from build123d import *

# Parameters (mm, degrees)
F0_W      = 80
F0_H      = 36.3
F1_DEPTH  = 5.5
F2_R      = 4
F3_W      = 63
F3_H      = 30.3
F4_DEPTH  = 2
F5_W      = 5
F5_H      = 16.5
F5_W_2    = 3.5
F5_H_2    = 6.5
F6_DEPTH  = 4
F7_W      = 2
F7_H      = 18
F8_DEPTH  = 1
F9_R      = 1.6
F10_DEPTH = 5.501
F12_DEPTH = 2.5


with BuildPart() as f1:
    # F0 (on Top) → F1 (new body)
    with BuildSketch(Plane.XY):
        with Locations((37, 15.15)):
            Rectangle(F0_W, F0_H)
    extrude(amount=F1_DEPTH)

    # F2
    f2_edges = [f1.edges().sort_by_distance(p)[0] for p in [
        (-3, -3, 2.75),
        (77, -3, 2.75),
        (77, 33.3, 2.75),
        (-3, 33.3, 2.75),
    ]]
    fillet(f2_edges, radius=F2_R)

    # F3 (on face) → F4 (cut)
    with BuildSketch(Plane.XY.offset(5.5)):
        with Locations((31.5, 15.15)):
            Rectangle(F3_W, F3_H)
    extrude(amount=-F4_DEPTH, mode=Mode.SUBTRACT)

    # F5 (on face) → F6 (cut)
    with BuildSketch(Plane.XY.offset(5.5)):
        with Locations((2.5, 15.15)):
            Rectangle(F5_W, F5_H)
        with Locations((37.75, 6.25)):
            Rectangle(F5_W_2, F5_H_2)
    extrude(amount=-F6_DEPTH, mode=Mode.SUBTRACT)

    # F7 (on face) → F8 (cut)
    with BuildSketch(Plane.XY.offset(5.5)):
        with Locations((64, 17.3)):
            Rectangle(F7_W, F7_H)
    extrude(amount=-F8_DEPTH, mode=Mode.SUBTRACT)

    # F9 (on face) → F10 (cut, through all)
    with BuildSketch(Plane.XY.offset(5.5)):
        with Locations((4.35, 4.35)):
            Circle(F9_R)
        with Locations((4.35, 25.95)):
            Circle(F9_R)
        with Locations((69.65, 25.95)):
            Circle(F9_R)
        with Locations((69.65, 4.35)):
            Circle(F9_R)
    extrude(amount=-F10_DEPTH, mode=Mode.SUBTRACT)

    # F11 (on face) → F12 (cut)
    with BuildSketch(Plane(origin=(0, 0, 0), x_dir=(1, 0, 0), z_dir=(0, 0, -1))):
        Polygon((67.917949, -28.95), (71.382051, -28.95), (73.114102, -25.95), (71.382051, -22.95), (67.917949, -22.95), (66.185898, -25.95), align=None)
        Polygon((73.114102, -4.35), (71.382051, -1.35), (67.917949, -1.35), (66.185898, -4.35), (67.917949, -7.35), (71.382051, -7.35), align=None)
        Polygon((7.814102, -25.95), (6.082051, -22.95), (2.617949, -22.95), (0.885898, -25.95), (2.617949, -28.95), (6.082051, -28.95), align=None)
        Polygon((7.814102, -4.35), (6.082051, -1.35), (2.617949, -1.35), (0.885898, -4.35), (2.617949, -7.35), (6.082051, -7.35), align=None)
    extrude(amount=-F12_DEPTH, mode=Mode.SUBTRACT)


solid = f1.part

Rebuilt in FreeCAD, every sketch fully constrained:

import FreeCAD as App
import Part
import Sketcher
from FreeCAD import Vector
Q = App.Units.Quantity


def edges_at(feature, points):
    """Names of the edges that pass closest to the given points."""
    edges = feature.Shape.Edges
    near = lambda p: min(range(len(edges)), key=lambda i: edges[i].distToShape(Part.Vertex(*p))[0])
    return sorted({f"Edge{near(p) + 1}" for p in points})

doc = App.newDocument("Part")
body = doc.addObject("PartDesign::Body", "Body")

sketch1 = body.newObject("Sketcher::SketchObject", "Sketch")
sketch1.AttachmentSupport = (doc.getObject("XY_Plane"), [""])
sketch1.MapMode = "FlatFace"
sketch1.addGeometry(Part.LineSegment(Vector(-3, 33, 0), Vector(-3, -3, 0)), False)
sketch1.addGeometry(Part.LineSegment(Vector(-3, -3, 0), Vector(77, -3, 0)), False)
sketch1.addGeometry(Part.LineSegment(Vector(77, -3, 0), Vector(77, 33, 0)), False)
sketch1.addGeometry(Part.LineSegment(Vector(77, 33, 0), Vector(-3, 33, 0)), False)
sketch1.addConstraint(Sketcher.Constraint("Coincident", 0, 2, 1, 1))
sketch1.addConstraint(Sketcher.Constraint("Coincident", 1, 2, 2, 1))
sketch1.addConstraint(Sketcher.Constraint("Coincident", 2, 2, 3, 1))
sketch1.addConstraint(Sketcher.Constraint("Coincident", 3, 2, 0, 1))
sketch1.addConstraint(Sketcher.Constraint("Vertical", 0))
sketch1.addConstraint(Sketcher.Constraint("Horizontal", 1))
sketch1.addConstraint(Sketcher.Constraint("Vertical", 2))
sketch1.addConstraint(Sketcher.Constraint("Horizontal", 3))
sketch1.addConstraint(Sketcher.Constraint("DistanceX", 1, 1, 1, 2, 80.0))
sketch1.addConstraint(Sketcher.Constraint("DistanceY", 0, 2, 0, 1, 36.3))
sketch1.addConstraint(Sketcher.Constraint("DistanceX", 0, 2, -1, 1, 3.0))
sketch1.addConstraint(Sketcher.Constraint("DistanceY", 0, 2, -1, 1, 3.0))
pad1 = body.newObject("PartDesign::Pad", "Pad")
pad1.Profile = sketch1
pad1.Length = 5.5
doc.recompute()

fillet = body.newObject("PartDesign::Fillet", "Fillet")
fillet.Base = (pad1, edges_at(pad1, [
    (-3, -3, 2.75),
    (77, -3, 2.75),
    (77, 33.3, 2.75),
    (-3, 33.3, 2.75),
]))
fillet.Radius = 4

sketch2 = body.newObject("Sketcher::SketchObject", "Sketch001")
sketch2.AttachmentSupport = (doc.getObject("XY_Plane"), [""])
sketch2.MapMode = "FlatFace"
sketch2.AttachmentOffset = App.Placement(Vector(0, 0, 5.5), App.Rotation())
sketch2.addGeometry(Part.LineSegment(Vector(0, 30, 0), Vector(0, 0, 0)), False)
sketch2.addGeometry(Part.LineSegment(Vector(0, 0, 0), Vector(63, 0, 0)), False)
sketch2.addGeometry(Part.LineSegment(Vector(63, 0, 0), Vector(63, 30, 0)), False)
sketch2.addGeometry(Part.LineSegment(Vector(63, 30, 0), Vector(0, 30, 0)), False)
sketch2.addConstraint(Sketcher.Constraint("Coincident", 0, 2, 1, 1))
sketch2.addConstraint(Sketcher.Constraint("Coincident", 1, 2, 2, 1))
sketch2.addConstraint(Sketcher.Constraint("Coincident", 2, 2, 3, 1))
sketch2.addConstraint(Sketcher.Constraint("Coincident", 3, 2, 0, 1))
sketch2.addConstraint(Sketcher.Constraint("Vertical", 0))
sketch2.addConstraint(Sketcher.Constraint("Horizontal", 1))
sketch2.addConstraint(Sketcher.Constraint("Vertical", 2))
sketch2.addConstraint(Sketcher.Constraint("Horizontal", 3))
sketch2.addConstraint(Sketcher.Constraint("Coincident", 0, 2, -1, 1))
sketch2.addConstraint(Sketcher.Constraint("DistanceX", 1, 1, 1, 2, 63.0))
sketch2.addConstraint(Sketcher.Constraint("DistanceY", 0, 2, 0, 1, 30.3))
pocket1 = body.newObject("PartDesign::Pocket", "Pocket")
pocket1.Profile = sketch2
pocket1.Length = 2

sketch3 = body.newObject("Sketcher::SketchObject", "Sketch002")
sketch3.AttachmentSupport = (doc.getObject("XY_Plane"), [""])
sketch3.MapMode = "FlatFace"
sketch3.AttachmentOffset = App.Placement(Vector(0, 0, 5.5), App.Rotation())
sketch3.addGeometry(Part.LineSegment(Vector(0, 23.4, 0), Vector(0, 6.9, 0)), False)
sketch3.addGeometry(Part.LineSegment(Vector(0, 6.9, 0), Vector(5, 6.9, 0)), False)
sketch3.addGeometry(Part.LineSegment(Vector(5, 6.9, 0), Vector(5, 23.4, 0)), False)
sketch3.addGeometry(Part.LineSegment(Vector(5, 23.4, 0), Vector(0, 23.4, 0)), False)
sketch3.addGeometry(Part.LineSegment(Vector(36, 9.5, 0), Vector(36, 3, 0)), False)
sketch3.addGeometry(Part.LineSegment(Vector(36, 3, 0), Vector(39.5, 3, 0)), False)
sketch3.addGeometry(Part.LineSegment(Vector(39.5, 3, 0), Vector(39.5, 9.5, 0)), False)
sketch3.addGeometry(Part.LineSegment(Vector(39.5, 9.5, 0), Vector(36, 9.5, 0)), False)
sketch3.addConstraint(Sketcher.Constraint("Coincident", 0, 2, 1, 1))
sketch3.addConstraint(Sketcher.Constraint("Coincident", 1, 2, 2, 1))
sketch3.addConstraint(Sketcher.Constraint("Coincident", 2, 2, 3, 1))
sketch3.addConstraint(Sketcher.Constraint("Coincident", 3, 2, 0, 1))
sketch3.addConstraint(Sketcher.Constraint("Coincident", 4, 2, 5, 1))
sketch3.addConstraint(Sketcher.Constraint("Coincident", 5, 2, 6, 1))
sketch3.addConstraint(Sketcher.Constraint("Coincident", 6, 2, 7, 1))
sketch3.addConstraint(Sketcher.Constraint("Coincident", 7, 2, 4, 1))
sketch3.addConstraint(Sketcher.Constraint("Vertical", 0))
sketch3.addConstraint(Sketcher.Constraint("Horizontal", 1))
sketch3.addConstraint(Sketcher.Constraint("Vertical", 2))
sketch3.addConstraint(Sketcher.Constraint("Horizontal", 3))
sketch3.addConstraint(Sketcher.Constraint("Vertical", 4))
sketch3.addConstraint(Sketcher.Constraint("Horizontal", 5))
sketch3.addConstraint(Sketcher.Constraint("Vertical", 6))
sketch3.addConstraint(Sketcher.Constraint("Horizontal", 7))
sketch3.addConstraint(Sketcher.Constraint("PointOnObject", 0, 2, -2))
sketch3.addConstraint(Sketcher.Constraint("DistanceX", 1, 1, 1, 2, 5.0))
sketch3.addConstraint(Sketcher.Constraint("DistanceX", 5, 1, 5, 2, 3.5))
sketch3.addConstraint(Sketcher.Constraint("DistanceY", 0, 2, 0, 1, 16.5))
sketch3.addConstraint(Sketcher.Constraint("DistanceY", 4, 2, 4, 1, 6.5))
sketch3.addConstraint(Sketcher.Constraint("DistanceX", -1, 1, 4, 2, 36.0))
sketch3.addConstraint(Sketcher.Constraint("DistanceY", -1, 1, 4, 2, 3.0))
sketch3.addConstraint(Sketcher.Constraint("DistanceY", -1, 1, 0, 2, 6.9))
pocket2 = body.newObject("PartDesign::Pocket", "Pocket001")
pocket2.Profile = sketch3
pocket2.Length = 4

sketch4 = body.newObject("Sketcher::SketchObject", "Sketch003")
sketch4.AttachmentSupport = (doc.getObject("XY_Plane"), [""])
sketch4.MapMode = "FlatFace"
sketch4.AttachmentOffset = App.Placement(Vector(0, 0, 5.5), App.Rotation())
sketch4.addGeometry(Part.LineSegment(Vector(63, 26.3, 0), Vector(63, 8.3, 0)), False)
sketch4.addGeometry(Part.LineSegment(Vector(63, 8.3, 0), Vector(65, 8.3, 0)), False)
sketch4.addGeometry(Part.LineSegment(Vector(65, 8.3, 0), Vector(65, 26.3, 0)), False)
sketch4.addGeometry(Part.LineSegment(Vector(65, 26.3, 0), Vector(63, 26.3, 0)), False)
sketch4.addConstraint(Sketcher.Constraint("Coincident", 0, 2, 1, 1))
sketch4.addConstraint(Sketcher.Constraint("Coincident", 1, 2, 2, 1))
sketch4.addConstraint(Sketcher.Constraint("Coincident", 2, 2, 3, 1))
sketch4.addConstraint(Sketcher.Constraint("Coincident", 3, 2, 0, 1))
sketch4.addConstraint(Sketcher.Constraint("Vertical", 0))
sketch4.addConstraint(Sketcher.Constraint("Horizontal", 1))
sketch4.addConstraint(Sketcher.Constraint("Vertical", 2))
sketch4.addConstraint(Sketcher.Constraint("Horizontal", 3))
sketch4.addConstraint(Sketcher.Constraint("DistanceX", 1, 1, 1, 2, 2.0))
sketch4.addConstraint(Sketcher.Constraint("DistanceY", 0, 2, 0, 1, 18.0))
sketch4.addConstraint(Sketcher.Constraint("DistanceX", -1, 1, 0, 2, 63.0))
sketch4.addConstraint(Sketcher.Constraint("DistanceY", -1, 1, 0, 2, 8.3))
pocket3 = body.newObject("PartDesign::Pocket", "Pocket002")
pocket3.Profile = sketch4
pocket3.Length = 1

sketch5 = body.newObject("Sketcher::SketchObject", "Sketch004")
sketch5.AttachmentSupport = (doc.getObject("XY_Plane"), [""])
sketch5.MapMode = "FlatFace"
sketch5.AttachmentOffset = App.Placement(Vector(0, 0, 5.5), App.Rotation())
sketch5.addGeometry(Part.Circle(Vector(4.3, 4.3, 0), Vector(0, 0, 1), 1.6), False)
sketch5.addGeometry(Part.Circle(Vector(4.3, 25.9, 0), Vector(0, 0, 1), 1.6), False)
sketch5.addGeometry(Part.Circle(Vector(69.7, 25.9, 0), Vector(0, 0, 1), 1.6), False)
sketch5.addGeometry(Part.Circle(Vector(69.7, 4.3, 0), Vector(0, 0, 1), 1.6), False)
sketch5.addConstraint(Sketcher.Constraint("Equal", 0, 1))
sketch5.addConstraint(Sketcher.Constraint("Equal", 1, 2))
sketch5.addConstraint(Sketcher.Constraint("Equal", 2, 3))
sketch5.addConstraint(Sketcher.Constraint("Horizontal", 1, 3, 2, 3))
sketch5.addConstraint(Sketcher.Constraint("Horizontal", 0, 3, 3, 3))
sketch5.addConstraint(Sketcher.Constraint("Vertical", 0, 3, 1, 3))
sketch5.addConstraint(Sketcher.Constraint("Vertical", 2, 3, 3, 3))
sketch5.addConstraint(Sketcher.Constraint("Diameter", 0, 3.2))
sketch5.addConstraint(Sketcher.Constraint("DistanceY", 0, 3, 1, 3, 21.6))
sketch5.addConstraint(Sketcher.Constraint("DistanceX", 1, 3, 2, 3, 65.3))
sketch5.addConstraint(Sketcher.Constraint("DistanceX", -1, 1, 0, 3, 4.35))
sketch5.addConstraint(Sketcher.Constraint("DistanceY", -1, 1, 0, 3, 4.35))
pocket4 = body.newObject("PartDesign::Pocket", "Pocket003")
pocket4.Profile = sketch5
pocket4.Type = "ThroughAll"

sketch6 = body.newObject("Sketcher::SketchObject", "Sketch005")
sketch6.AttachmentSupport = (doc.getObject("XY_Plane"), [""])
sketch6.MapMode = "FlatFace"
sketch6.addGeometry(Part.LineSegment(Vector(67.9, 28.9, 0), Vector(71.4, 28.9, 0)), False)
sketch6.addGeometry(Part.LineSegment(Vector(71.4, 28.9, 0), Vector(73.1, 25.9, 0)), False)
sketch6.addGeometry(Part.LineSegment(Vector(73.1, 25.9, 0), Vector(71.4, 22.9, 0)), False)
sketch6.addGeometry(Part.LineSegment(Vector(71.4, 22.9, 0), Vector(67.9, 22.9, 0)), False)
sketch6.addGeometry(Part.LineSegment(Vector(67.9, 22.9, 0), Vector(66.2, 25.9, 0)), False)
sketch6.addGeometry(Part.LineSegment(Vector(66.2, 25.9, 0), Vector(67.9, 28.9, 0)), False)
sketch6.addGeometry(Part.LineSegment(Vector(73.1, 4.3, 0), Vector(71.4, 1.4, 0)), False)
sketch6.addGeometry(Part.LineSegment(Vector(71.4, 1.4, 0), Vector(67.9, 1.4, 0)), False)
sketch6.addGeometry(Part.LineSegment(Vector(67.9, 1.4, 0), Vector(66.2, 4.3, 0)), False)
sketch6.addGeometry(Part.LineSegment(Vector(66.2, 4.3, 0), Vector(67.9, 7.3, 0)), False)
sketch6.addGeometry(Part.LineSegment(Vector(67.9, 7.3, 0), Vector(71.4, 7.3, 0)), False)
sketch6.addGeometry(Part.LineSegment(Vector(71.4, 7.3, 0), Vector(73.1, 4.3, 0)), False)
sketch6.addGeometry(Part.LineSegment(Vector(7.8, 25.9, 0), Vector(6.1, 22.9, 0)), False)
sketch6.addGeometry(Part.LineSegment(Vector(6.1, 22.9, 0), Vector(2.6, 22.9, 0)), False)
sketch6.addGeometry(Part.LineSegment(Vector(2.6, 22.9, 0), Vector(0.9, 25.9, 0)), False)
sketch6.addGeometry(Part.LineSegment(Vector(0.9, 25.9, 0), Vector(2.6, 28.9, 0)), False)
sketch6.addGeometry(Part.LineSegment(Vector(2.6, 28.9, 0), Vector(6.1, 28.9, 0)), False)
sketch6.addGeometry(Part.LineSegment(Vector(6.1, 28.9, 0), Vector(7.8, 25.9, 0)), False)
sketch6.addGeometry(Part.LineSegment(Vector(7.8, 4.3, 0), Vector(6.1, 1.4, 0)), False)
sketch6.addGeometry(Part.LineSegment(Vector(6.1, 1.4, 0), Vector(2.6, 1.4, 0)), False)
sketch6.addGeometry(Part.LineSegment(Vector(2.6, 1.4, 0), Vector(0.9, 4.3, 0)), False)
sketch6.addGeometry(Part.LineSegment(Vector(0.9, 4.3, 0), Vector(2.6, 7.3, 0)), False)
sketch6.addGeometry(Part.LineSegment(Vector(2.6, 7.3, 0), Vector(6.1, 7.3, 0)), False)
sketch6.addGeometry(Part.LineSegment(Vector(6.1, 7.3, 0), Vector(7.8, 4.3, 0)), False)
sketch6.addConstraint(Sketcher.Constraint("Coincident", 0, 2, 1, 1))
sketch6.addConstraint(Sketcher.Constraint("Coincident", 1, 2, 2, 1))
sketch6.addConstraint(Sketcher.Constraint("Coincident", 2, 2, 3, 1))
sketch6.addConstraint(Sketcher.Constraint("Coincident", 3, 2, 4, 1))
sketch6.addConstraint(Sketcher.Constraint("Coincident", 4, 2, 5, 1))
sketch6.addConstraint(Sketcher.Constraint("Coincident", 5, 2, 0, 1))
sketch6.addConstraint(Sketcher.Constraint("Coincident", 6, 2, 7, 1))
sketch6.addConstraint(Sketcher.Constraint("Coincident", 7, 2, 8, 1))
sketch6.addConstraint(Sketcher.Constraint("Coincident", 8, 2, 9, 1))
sketch6.addConstraint(Sketcher.Constraint("Coincident", 9, 2, 10, 1))
sketch6.addConstraint(Sketcher.Constraint("Coincident", 10, 2, 11, 1))
sketch6.addConstraint(Sketcher.Constraint("Coincident", 11, 2, 6, 1))
sketch6.addConstraint(Sketcher.Constraint("Coincident", 12, 2, 13, 1))
sketch6.addConstraint(Sketcher.Constraint("Coincident", 13, 2, 14, 1))
sketch6.addConstraint(Sketcher.Constraint("Coincident", 14, 2, 15, 1))
sketch6.addConstraint(Sketcher.Constraint("Coincident", 15, 2, 16, 1))
sketch6.addConstraint(Sketcher.Constraint("Coincident", 16, 2, 17, 1))
sketch6.addConstraint(Sketcher.Constraint("Coincident", 17, 2, 12, 1))
sketch6.addConstraint(Sketcher.Constraint("Coincident", 18, 2, 19, 1))
sketch6.addConstraint(Sketcher.Constraint("Coincident", 19, 2, 20, 1))
sketch6.addConstraint(Sketcher.Constraint("Coincident", 20, 2, 21, 1))
sketch6.addConstraint(Sketcher.Constraint("Coincident", 21, 2, 22, 1))
sketch6.addConstraint(Sketcher.Constraint("Coincident", 22, 2, 23, 1))
sketch6.addConstraint(Sketcher.Constraint("Coincident", 23, 2, 18, 1))
sketch6.addConstraint(Sketcher.Constraint("Horizontal", 0))
sketch6.addConstraint(Sketcher.Constraint("Horizontal", 3))
sketch6.addConstraint(Sketcher.Constraint("Horizontal", 7))
sketch6.addConstraint(Sketcher.Constraint("Horizontal", 10))
sketch6.addConstraint(Sketcher.Constraint("Horizontal", 13))
sketch6.addConstraint(Sketcher.Constraint("Horizontal", 16))
sketch6.addConstraint(Sketcher.Constraint("Horizontal", 19))
sketch6.addConstraint(Sketcher.Constraint("Horizontal", 22))
sketch6.addConstraint(Sketcher.Constraint("Parallel", 1, 4))
sketch6.addConstraint(Sketcher.Constraint("Parallel", 2, 5))
sketch6.addConstraint(Sketcher.Constraint("Parallel", 5, 6))
sketch6.addConstraint(Sketcher.Constraint("Parallel", 4, 8))
sketch6.addConstraint(Sketcher.Constraint("Parallel", 6, 9))
sketch6.addConstraint(Sketcher.Constraint("Parallel", 8, 11))
sketch6.addConstraint(Sketcher.Constraint("Parallel", 9, 12))
sketch6.addConstraint(Sketcher.Constraint("Parallel", 11, 14))
sketch6.addConstraint(Sketcher.Constraint("Parallel", 12, 15))
sketch6.addConstraint(Sketcher.Constraint("Parallel", 14, 17))
sketch6.addConstraint(Sketcher.Constraint("Parallel", 15, 18))
sketch6.addConstraint(Sketcher.Constraint("Parallel", 17, 20))
sketch6.addConstraint(Sketcher.Constraint("Parallel", 18, 21))
sketch6.addConstraint(Sketcher.Constraint("Parallel", 20, 23))
sketch6.addConstraint(Sketcher.Constraint("Horizontal", 1, 2, 4, 2))
sketch6.addConstraint(Sketcher.Constraint("Horizontal", 8, 2, 11, 2))
sketch6.addConstraint(Sketcher.Constraint("Horizontal", 3, 2, 12, 2))
sketch6.addConstraint(Sketcher.Constraint("Horizontal", 4, 2, 14, 2))
sketch6.addConstraint(Sketcher.Constraint("Horizontal", 5, 2, 15, 2))
sketch6.addConstraint(Sketcher.Constraint("Horizontal", 14, 2, 17, 2))
sketch6.addConstraint(Sketcher.Constraint("Horizontal", 7, 2, 18, 2))
sketch6.addConstraint(Sketcher.Constraint("Horizontal", 11, 2, 20, 2))
sketch6.addConstraint(Sketcher.Constraint("Horizontal", 10, 2, 21, 2))
sketch6.addConstraint(Sketcher.Constraint("Horizontal", 20, 2, 23, 2))
sketch6.addConstraint(Sketcher.Constraint("Vertical", 0, 2, 2, 2))
sketch6.addConstraint(Sketcher.Constraint("Vertical", 3, 2, 5, 2))
sketch6.addConstraint(Sketcher.Constraint("Vertical", 2, 2, 6, 2))
sketch6.addConstraint(Sketcher.Constraint("Vertical", 5, 2, 7, 2))
sketch6.addConstraint(Sketcher.Constraint("Vertical", 4, 2, 8, 2))
sketch6.addConstraint(Sketcher.Constraint("Vertical", 7, 2, 9, 2))
sketch6.addConstraint(Sketcher.Constraint("Vertical", 16, 2, 18, 2))
sketch6.addConstraint(Sketcher.Constraint("Vertical", 15, 2, 19, 2))
sketch6.addConstraint(Sketcher.Constraint("Equal", 10, 13))
sketch6.addConstraint(Sketcher.Constraint("Angle", 1, Q("-59.999997 deg")))
sketch6.addConstraint(Sketcher.Constraint("DistanceY", 1, 2, 0, 2, 3.0))
sketch6.addConstraint(Sketcher.Constraint("DistanceY", 6, 2, 2, 2, 21.6))
sketch6.addConstraint(Sketcher.Constraint("DistanceX", 13, 2, 3, 2, 65.3))
sketch6.addConstraint(Sketcher.Constraint("DistanceY", -1, 1, 0, 2, 28.95))
sketch6.addConstraint(Sketcher.Constraint("DistanceX", 13, 2, 13, 1, 3.464102))
sketch6.addConstraint(Sketcher.Constraint("DistanceX", -1, 1, 0, 2, 71.382051))
pocket5 = body.newObject("PartDesign::Pocket", "Pocket004")
pocket5.Profile = sketch6
pocket5.Length = 2.5
pocket5.Reversed = True

doc.recompute()
